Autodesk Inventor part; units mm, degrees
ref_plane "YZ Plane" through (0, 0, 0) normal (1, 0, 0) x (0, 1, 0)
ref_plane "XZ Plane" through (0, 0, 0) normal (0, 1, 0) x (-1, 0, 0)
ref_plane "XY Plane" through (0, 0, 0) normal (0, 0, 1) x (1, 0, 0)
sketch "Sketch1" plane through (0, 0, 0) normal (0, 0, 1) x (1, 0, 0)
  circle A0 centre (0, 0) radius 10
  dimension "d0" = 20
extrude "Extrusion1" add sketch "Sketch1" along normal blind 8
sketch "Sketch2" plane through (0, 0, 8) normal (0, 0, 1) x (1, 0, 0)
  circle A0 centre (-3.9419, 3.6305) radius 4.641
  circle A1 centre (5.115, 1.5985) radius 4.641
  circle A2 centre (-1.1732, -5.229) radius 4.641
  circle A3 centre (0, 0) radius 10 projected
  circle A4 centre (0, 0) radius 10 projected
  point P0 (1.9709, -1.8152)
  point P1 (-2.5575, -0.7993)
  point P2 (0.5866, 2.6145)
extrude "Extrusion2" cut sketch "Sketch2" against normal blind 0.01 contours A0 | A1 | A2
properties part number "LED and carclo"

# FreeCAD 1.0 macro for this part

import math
import FreeCAD as App
import Part
import Sketcher

doc = App.newDocument("Part")
body = doc.addObject("PartDesign::Body", "Body")

# Sketch on XY plane
sketch1 = doc.addObject("Sketcher::SketchObject", "Sketch")
body.addObject(sketch1)
sketch1.AttachmentSupport = (doc.XY_Plane, [""])
sketch1.MapMode = "FlatFace"
sketch1.addGeometry(Part.Circle(App.Vector(0, 0, 0), App.Vector(0, 0, 1), 10), False)
sketch1.addConstraint([
    Sketcher.Constraint("Coincident", 0, 3, -1, 1),
    Sketcher.Constraint("Diameter", 0, 20.0),
])
pad1 = doc.addObject("PartDesign::Pad", "Pad")
body.addObject(pad1)
pad1.Profile = sketch1
pad1.Length = 8

# Sketch on XY plane
sketch2 = doc.addObject("Sketcher::SketchObject", "Sketch001")
body.addObject(sketch2)
sketch2.AttachmentSupport = (doc.XY_Plane, [""])
sketch2.MapMode = "FlatFace"
sketch2.AttachmentOffset = App.Placement(App.Vector(0, 0, 8), App.Rotation())
sketch2.addGeometry([
    Part.ArcOfCircle(Part.Circle(App.Vector(-3.9, 3.6, 0), App.Vector(0, 0, 1), 4.6), math.radians(-13), math.radians(287)),  # 0
    Part.ArcOfCircle(Part.Circle(App.Vector(-3.9, 3.6, 0), App.Vector(0, 0, 1), 4.6), math.radians(-73), math.radians(-13)),  # 1
    Part.ArcOfCircle(Part.Circle(App.Vector(5.1, 1.6, 0), App.Vector(0, 0, 1), 4.6), math.radians(-133), math.radians(167)),  # 2
    Part.ArcOfCircle(Part.Circle(App.Vector(5.1, 1.6, 0), App.Vector(0, 0, 1), 4.6), math.radians(167), math.radians(227)),  # 3
    Part.ArcOfCircle(Part.Circle(App.Vector(-1.2, -5.2, 0), App.Vector(0, 0, 1), 4.6), math.radians(47), math.radians(107)),  # 4
    Part.ArcOfCircle(Part.Circle(App.Vector(-1.2, -5.2, 0), App.Vector(0, 0, 1), 4.6), math.radians(107), math.radians(407)),  # 5
], False)
sketch2.addConstraint([
    Sketcher.Constraint("Tangent", 0, 1, 1, 2),
    Sketcher.Constraint("Coincident", 1, 1, 0, 2),
    Sketcher.Constraint("Tangent", 2, 1, 3, 2),
    Sketcher.Constraint("Coincident", 3, 1, 2, 2),
    Sketcher.Constraint("Tangent", 4, 1, 5, 2),
    Sketcher.Constraint("Coincident", 5, 1, 4, 2),
    Sketcher.Constraint("Coincident", 3, 1, 0, 1),
    Sketcher.Constraint("Coincident", 4, 1, 2, 1),
    Sketcher.Constraint("Coincident", 5, 1, 1, 1),
    Sketcher.Constraint("Equal", 1, 2),
    Sketcher.Constraint("Equal", 3, 4),
    Sketcher.Constraint("Radius", 0, 4.641),
    Sketcher.Constraint("DistanceX", 0, 3, -1, 1, 3.942),
    Sketcher.Constraint("DistanceX", -1, 1, 2, 3, 5.115),
    Sketcher.Constraint("DistanceY", 4, 3, -1, 1, 5.229),
    Sketcher.Constraint("DistanceX", -1, 1, 2, 1, 1.971),
    Sketcher.Constraint("DistanceY", 0, 1, 0, 3, 1.016),
    Sketcher.Constraint("DistanceX", 1, 1, 0, 1, 3.144),
])
pocket1 = doc.addObject("PartDesign::Pocket", "Pocket")
body.addObject(pocket1)
pocket1.Profile = sketch2
pocket1.Length = 0.01

doc.recompute()
